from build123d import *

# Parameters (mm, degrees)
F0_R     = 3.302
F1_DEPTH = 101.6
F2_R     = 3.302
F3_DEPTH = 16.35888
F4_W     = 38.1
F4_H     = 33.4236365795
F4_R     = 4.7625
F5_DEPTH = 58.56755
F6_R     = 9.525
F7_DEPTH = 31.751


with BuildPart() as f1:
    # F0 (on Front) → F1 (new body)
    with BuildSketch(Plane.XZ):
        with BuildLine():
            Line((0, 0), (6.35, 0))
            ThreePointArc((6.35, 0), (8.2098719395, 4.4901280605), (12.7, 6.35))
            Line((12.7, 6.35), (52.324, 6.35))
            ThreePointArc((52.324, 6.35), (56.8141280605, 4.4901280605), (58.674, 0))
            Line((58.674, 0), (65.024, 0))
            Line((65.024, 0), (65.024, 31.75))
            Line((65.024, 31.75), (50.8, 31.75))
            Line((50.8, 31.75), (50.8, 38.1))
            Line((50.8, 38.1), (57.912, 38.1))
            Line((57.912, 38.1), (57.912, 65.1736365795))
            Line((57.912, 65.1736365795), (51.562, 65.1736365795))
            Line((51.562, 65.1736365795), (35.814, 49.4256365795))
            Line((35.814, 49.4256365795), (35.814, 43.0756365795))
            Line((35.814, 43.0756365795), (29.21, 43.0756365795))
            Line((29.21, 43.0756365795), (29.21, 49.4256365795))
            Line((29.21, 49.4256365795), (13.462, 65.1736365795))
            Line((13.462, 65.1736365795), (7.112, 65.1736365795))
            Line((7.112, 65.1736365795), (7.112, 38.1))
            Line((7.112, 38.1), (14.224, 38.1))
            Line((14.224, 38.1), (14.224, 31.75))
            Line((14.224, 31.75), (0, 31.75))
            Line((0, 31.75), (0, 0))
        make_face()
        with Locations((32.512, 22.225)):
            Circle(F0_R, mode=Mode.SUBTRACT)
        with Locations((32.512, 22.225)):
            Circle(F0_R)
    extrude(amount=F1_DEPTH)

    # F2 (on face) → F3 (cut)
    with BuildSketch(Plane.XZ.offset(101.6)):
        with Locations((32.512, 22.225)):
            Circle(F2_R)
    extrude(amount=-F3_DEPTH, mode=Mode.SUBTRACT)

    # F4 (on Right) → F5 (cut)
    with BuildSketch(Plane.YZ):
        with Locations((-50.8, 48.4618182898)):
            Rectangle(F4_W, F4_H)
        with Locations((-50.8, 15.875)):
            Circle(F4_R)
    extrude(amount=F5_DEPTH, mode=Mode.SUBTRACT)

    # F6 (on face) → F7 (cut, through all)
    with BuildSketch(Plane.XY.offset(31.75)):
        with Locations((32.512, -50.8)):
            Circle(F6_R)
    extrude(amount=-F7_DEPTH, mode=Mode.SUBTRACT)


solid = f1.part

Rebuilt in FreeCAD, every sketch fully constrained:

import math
import FreeCAD as App
import Part
import Sketcher

V = App.Vector
Q = App.Units.Quantity

doc = App.newDocument("Part")
body = doc.addObject("PartDesign::Body", "Body")

# Sketch on XZ plane
sketch1 = doc.addObject("Sketcher::SketchObject", "Sketch")
body.addObject(sketch1)
sketch1.AttachmentSupport = (doc.XZ_Plane, [""])
sketch1.MapMode = "FlatFace"
sketch1.addGeometry([
    Part.LineSegment(V(0, 0, 0), V(6.35, 0, 0)),  # 0
    Part.ArcOfCircle(Part.Circle(V(12.7, 0, 0), V(0, 0, 1), 6.35), math.radians(90), math.radians(180)),  # 1
    Part.LineSegment(V(12.7, 6.35, 0), V(52.324, 6.35, 0)),  # 2
    Part.ArcOfCircle(Part.Circle(V(52.324, 0, 0), V(0, 0, 1), 6.35), math.radians(0), math.radians(90)),  # 3
    Part.LineSegment(V(58.674, 0, 0), V(65.024, 0, 0)),  # 4
    Part.LineSegment(V(65.024, 0, 0), V(65.024, 31.75, 0)),  # 5
    Part.LineSegment(V(65.024, 31.75, 0), V(50.8, 31.75, 0)),  # 6
    Part.LineSegment(V(50.8, 31.75, 0), V(50.8, 38.1, 0)),  # 7
    Part.LineSegment(V(50.8, 38.1, 0), V(57.912, 38.1, 0)),  # 8
    Part.LineSegment(V(57.912, 38.1, 0), V(57.912, 65.173637, 0)),  # 9
    Part.LineSegment(V(57.912, 65.173637, 0), V(51.562, 65.173637, 0)),  # 10
    Part.LineSegment(V(51.562, 65.173637, 0), V(35.814, 49.425637, 0)),  # 11
    Part.LineSegment(V(35.814, 49.425637, 0), V(35.814, 43.075637, 0)),  # 12
    Part.LineSegment(V(35.814, 43.075637, 0), V(29.21, 43.075637, 0)),  # 13
    Part.LineSegment(V(29.21, 43.075637, 0), V(29.21, 49.425637, 0)),  # 14
    Part.LineSegment(V(29.21, 49.425637, 0), V(13.462, 65.173637, 0)),  # 15
    Part.LineSegment(V(13.462, 65.173637, 0), V(7.112, 65.173637, 0)),  # 16
    Part.LineSegment(V(7.112, 65.173637, 0), V(7.112, 38.1, 0)),  # 17
    Part.LineSegment(V(7.112, 38.1, 0), V(14.224, 38.1, 0)),  # 18
    Part.LineSegment(V(14.224, 38.1, 0), V(14.224, 31.75, 0)),  # 19
    Part.LineSegment(V(14.224, 31.75, 0), V(0, 31.75, 0)),  # 20
    Part.LineSegment(V(0, 31.75, 0), V(0, 0, 0)),  # 21
], False)
sketch1.addConstraint([
    Sketcher.Constraint("Coincident", 0, 2, 1, 2),
    Sketcher.Constraint("Tangent", 1, 1, 2, 1),
    Sketcher.Constraint("Tangent", 2, 2, 3, 2),
    Sketcher.Constraint("Coincident", 3, 1, 4, 1),
    Sketcher.Constraint("Coincident", 4, 2, 5, 1),
    Sketcher.Constraint("Coincident", 5, 2, 6, 1),
    Sketcher.Constraint("Coincident", 6, 2, 7, 1),
    Sketcher.Constraint("Coincident", 7, 2, 8, 1),
    Sketcher.Constraint("Coincident", 8, 2, 9, 1),
    Sketcher.Constraint("Coincident", 9, 2, 10, 1),
    Sketcher.Constraint("Coincident", 10, 2, 11, 1),
    Sketcher.Constraint("Coincident", 11, 2, 12, 1),
    Sketcher.Constraint("Coincident", 12, 2, 13, 1),
    Sketcher.Constraint("Coincident", 13, 2, 14, 1),
    Sketcher.Constraint("Coincident", 14, 2, 15, 1),
    Sketcher.Constraint("Coincident", 15, 2, 16, 1),
    Sketcher.Constraint("Coincident", 16, 2, 17, 1),
    Sketcher.Constraint("Coincident", 17, 2, 18, 1),
    Sketcher.Constraint("Coincident", 18, 2, 19, 1),
    Sketcher.Constraint("Coincident", 19, 2, 20, 1),
    Sketcher.Constraint("Coincident", 20, 2, 21, 1),
    Sketcher.Constraint("Coincident", 21, 2, 0, 1),
    Sketcher.Constraint("Horizontal", 0),
    Sketcher.Constraint("Horizontal", 2),
    Sketcher.Constraint("Horizontal", 4),
    Sketcher.Constraint("Vertical", 5),
    Sketcher.Constraint("Horizontal", 6),
    Sketcher.Constraint("Vertical", 7),
    Sketcher.Constraint("Horizontal", 8),
    Sketcher.Constraint("Vertical", 9),
    Sketcher.Constraint("Horizontal", 10),
    Sketcher.Constraint("Vertical", 12),
    Sketcher.Constraint("Horizontal", 13),
    Sketcher.Constraint("Vertical", 14),
    Sketcher.Constraint("Horizontal", 16),
    Sketcher.Constraint("Vertical", 17),
    Sketcher.Constraint("Horizontal", 18),
    Sketcher.Constraint("Vertical", 19),
    Sketcher.Constraint("Horizontal", 20),
    Sketcher.Constraint("Vertical", 21),
    Sketcher.Constraint("Coincident", 21, 2, -1, 1),
    Sketcher.Constraint("Equal", 1, 3),
    Sketcher.Constraint("PointOnObject", 1, 3, -1),
    Sketcher.Constraint("PointOnObject", 3, 1, -1),
    Sketcher.Constraint("Perpendicular", 11, 15),
    Sketcher.Constraint("Horizontal", 11, 2, 14, 2),
    Sketcher.Constraint("Horizontal", 10, 2, 15, 2),
    Sketcher.Constraint("Horizontal", 8, 2, 17, 2),
    Sketcher.Constraint("Horizontal", 6, 2, 19, 2),
    Sketcher.Constraint("Equal", 0, 4),
    Sketcher.Constraint("Equal", 4, 10),
    Sketcher.Constraint("Equal", 10, 16),
    Sketcher.Constraint("Equal", 8, 18),
    Sketcher.Constraint("Equal", 6, 20),
    Sketcher.Constraint("Equal", 16, 7),
    Sketcher.Constraint("Equal", 7, 12),
    Sketcher.Constraint("Equal", 11, 15),
    Sketcher.Constraint("Radius", 1, Q("0.25 in")),
    Sketcher.Constraint("DistanceX", -1, 1, 6, 2, Q("2 in")),
    Sketcher.Constraint("DistanceY", 2, 2, 5, 2, Q("1 in")),
    Sketcher.Constraint("DistanceX", 0, 1, 0, 2, Q("0.25 in")),
    Sketcher.Constraint("DistanceX", 2, 1, 2, 2, Q("1.56 in")),
    Sketcher.Constraint("DistanceX", 8, 1, 8, 2, Q("0.28 in")),
    Sketcher.Constraint("DistanceX", 13, 2, 13, 1, Q("0.26 in")),
    Sketcher.Constraint("DistanceY", 9, 1, 9, 2, Q("27.073637 mm")),
])
pad1 = doc.addObject("PartDesign::Pad", "Pad")
body.addObject(pad1)
pad1.Profile = sketch1
pad1.Length = Q("4 in")

# Sketch on XZ plane
sketch2 = doc.addObject("Sketcher::SketchObject", "Sketch001")
body.addObject(sketch2)
sketch2.AttachmentSupport = (doc.XZ_Plane, [""])
sketch2.MapMode = "FlatFace"
sketch2.AttachmentOffset = App.Placement(V(0, 0, 4 * 25.4), App.Rotation())
sketch2.addGeometry(Part.Circle(V(32.512, 22.225, 0), V(0, 0, 1), 3.302), False)
sketch2.addConstraint([
    Sketcher.Constraint("Diameter", 0, Q("0.26 in")),
    Sketcher.Constraint("DistanceX", -1, 1, 0, 3, Q("1.28 in")),
    Sketcher.Constraint("DistanceY", -1, 1, 0, 3, Q("0.875 in")),
])
pocket1 = doc.addObject("PartDesign::Pocket", "Pocket")
body.addObject(pocket1)
pocket1.Profile = sketch2
pocket1.Length = 16.35888

# Sketch on YZ plane
sketch3 = doc.addObject("Sketcher::SketchObject", "Sketch002")
body.addObject(sketch3)
sketch3.AttachmentSupport = (doc.YZ_Plane, [""])
sketch3.MapMode = "FlatFace"
sketch3.addGeometry([
    Part.LineSegment(V(-69.85, 65.173637, 0), V(-69.85, 31.75, 0)),  # 0
    Part.LineSegment(V(-69.85, 31.75, 0), V(-31.75, 31.75, 0)),  # 1
    Part.LineSegment(V(-31.75, 31.75, 0), V(-31.75, 65.173637, 0)),  # 2
    Part.LineSegment(V(-31.75, 65.173637, 0), V(-69.85, 65.173637, 0)),  # 3
    Part.Circle(V(-50.8, 15.875, 0), V(0, 0, 1), 4.7625),  # 4
], False)
sketch3.addConstraint([
    Sketcher.Constraint("Coincident", 0, 2, 1, 1),
    Sketcher.Constraint("Coincident", 1, 2, 2, 1),
    Sketcher.Constraint("Coincident", 2, 2, 3, 1),
    Sketcher.Constraint("Coincident", 3, 2, 0, 1),
    Sketcher.Constraint("Vertical", 0),
    Sketcher.Constraint("Horizontal", 1),
    Sketcher.Constraint("Vertical", 2),
    Sketcher.Constraint("Horizontal", 3),
    Sketcher.Constraint("Diameter", 4, Q("0.375 in")),
    Sketcher.Constraint("DistanceX", 1, 1, 1, 2, Q("1.5 in")),
    Sketcher.Constraint("DistanceX", 4, 3, -1, 1, Q("2 in")),
    Sketcher.Constraint("DistanceX", 0, 2, -1, 1, Q("2.75 in")),
    Sketcher.Constraint("DistanceY", -1, 1, 0, 2, Q("1.25 in")),
    Sketcher.Constraint("DistanceY", -1, 1, 4, 3, Q("0.625 in")),
    Sketcher.Constraint("DistanceY", 0, 2, 0, 1, Q("33.423637 mm")),
])
pocket2 = doc.addObject("PartDesign::Pocket", "Pocket001")
body.addObject(pocket2)
pocket2.Profile = sketch3
pocket2.Length = 58.56755
pocket2.Reversed = True

# Sketch on XY plane
sketch4 = doc.addObject("Sketcher::SketchObject", "Sketch003")
body.addObject(sketch4)
sketch4.AttachmentSupport = (doc.XY_Plane, [""])
sketch4.MapMode = "FlatFace"
sketch4.AttachmentOffset = App.Placement(V(0, 0, 1.25 * 25.4), App.Rotation())
sketch4.addGeometry(Part.Circle(V(32.512, -50.8, 0), V(0, 0, 1), 9.525), False)
sketch4.addConstraint([
    Sketcher.Constraint("Diameter", 0, Q("0.75 in")),
    Sketcher.Constraint("DistanceY", 0, 3, -1, 1, Q("2 in")),
    Sketcher.Constraint("DistanceX", -1, 1, 0, 3, Q("1.28 in")),
])
pocket3 = doc.addObject("PartDesign::Pocket", "Pocket002")
body.addObject(pocket3)
pocket3.Profile = sketch4
pocket3.Type = "ThroughAll"

doc.recompute()
